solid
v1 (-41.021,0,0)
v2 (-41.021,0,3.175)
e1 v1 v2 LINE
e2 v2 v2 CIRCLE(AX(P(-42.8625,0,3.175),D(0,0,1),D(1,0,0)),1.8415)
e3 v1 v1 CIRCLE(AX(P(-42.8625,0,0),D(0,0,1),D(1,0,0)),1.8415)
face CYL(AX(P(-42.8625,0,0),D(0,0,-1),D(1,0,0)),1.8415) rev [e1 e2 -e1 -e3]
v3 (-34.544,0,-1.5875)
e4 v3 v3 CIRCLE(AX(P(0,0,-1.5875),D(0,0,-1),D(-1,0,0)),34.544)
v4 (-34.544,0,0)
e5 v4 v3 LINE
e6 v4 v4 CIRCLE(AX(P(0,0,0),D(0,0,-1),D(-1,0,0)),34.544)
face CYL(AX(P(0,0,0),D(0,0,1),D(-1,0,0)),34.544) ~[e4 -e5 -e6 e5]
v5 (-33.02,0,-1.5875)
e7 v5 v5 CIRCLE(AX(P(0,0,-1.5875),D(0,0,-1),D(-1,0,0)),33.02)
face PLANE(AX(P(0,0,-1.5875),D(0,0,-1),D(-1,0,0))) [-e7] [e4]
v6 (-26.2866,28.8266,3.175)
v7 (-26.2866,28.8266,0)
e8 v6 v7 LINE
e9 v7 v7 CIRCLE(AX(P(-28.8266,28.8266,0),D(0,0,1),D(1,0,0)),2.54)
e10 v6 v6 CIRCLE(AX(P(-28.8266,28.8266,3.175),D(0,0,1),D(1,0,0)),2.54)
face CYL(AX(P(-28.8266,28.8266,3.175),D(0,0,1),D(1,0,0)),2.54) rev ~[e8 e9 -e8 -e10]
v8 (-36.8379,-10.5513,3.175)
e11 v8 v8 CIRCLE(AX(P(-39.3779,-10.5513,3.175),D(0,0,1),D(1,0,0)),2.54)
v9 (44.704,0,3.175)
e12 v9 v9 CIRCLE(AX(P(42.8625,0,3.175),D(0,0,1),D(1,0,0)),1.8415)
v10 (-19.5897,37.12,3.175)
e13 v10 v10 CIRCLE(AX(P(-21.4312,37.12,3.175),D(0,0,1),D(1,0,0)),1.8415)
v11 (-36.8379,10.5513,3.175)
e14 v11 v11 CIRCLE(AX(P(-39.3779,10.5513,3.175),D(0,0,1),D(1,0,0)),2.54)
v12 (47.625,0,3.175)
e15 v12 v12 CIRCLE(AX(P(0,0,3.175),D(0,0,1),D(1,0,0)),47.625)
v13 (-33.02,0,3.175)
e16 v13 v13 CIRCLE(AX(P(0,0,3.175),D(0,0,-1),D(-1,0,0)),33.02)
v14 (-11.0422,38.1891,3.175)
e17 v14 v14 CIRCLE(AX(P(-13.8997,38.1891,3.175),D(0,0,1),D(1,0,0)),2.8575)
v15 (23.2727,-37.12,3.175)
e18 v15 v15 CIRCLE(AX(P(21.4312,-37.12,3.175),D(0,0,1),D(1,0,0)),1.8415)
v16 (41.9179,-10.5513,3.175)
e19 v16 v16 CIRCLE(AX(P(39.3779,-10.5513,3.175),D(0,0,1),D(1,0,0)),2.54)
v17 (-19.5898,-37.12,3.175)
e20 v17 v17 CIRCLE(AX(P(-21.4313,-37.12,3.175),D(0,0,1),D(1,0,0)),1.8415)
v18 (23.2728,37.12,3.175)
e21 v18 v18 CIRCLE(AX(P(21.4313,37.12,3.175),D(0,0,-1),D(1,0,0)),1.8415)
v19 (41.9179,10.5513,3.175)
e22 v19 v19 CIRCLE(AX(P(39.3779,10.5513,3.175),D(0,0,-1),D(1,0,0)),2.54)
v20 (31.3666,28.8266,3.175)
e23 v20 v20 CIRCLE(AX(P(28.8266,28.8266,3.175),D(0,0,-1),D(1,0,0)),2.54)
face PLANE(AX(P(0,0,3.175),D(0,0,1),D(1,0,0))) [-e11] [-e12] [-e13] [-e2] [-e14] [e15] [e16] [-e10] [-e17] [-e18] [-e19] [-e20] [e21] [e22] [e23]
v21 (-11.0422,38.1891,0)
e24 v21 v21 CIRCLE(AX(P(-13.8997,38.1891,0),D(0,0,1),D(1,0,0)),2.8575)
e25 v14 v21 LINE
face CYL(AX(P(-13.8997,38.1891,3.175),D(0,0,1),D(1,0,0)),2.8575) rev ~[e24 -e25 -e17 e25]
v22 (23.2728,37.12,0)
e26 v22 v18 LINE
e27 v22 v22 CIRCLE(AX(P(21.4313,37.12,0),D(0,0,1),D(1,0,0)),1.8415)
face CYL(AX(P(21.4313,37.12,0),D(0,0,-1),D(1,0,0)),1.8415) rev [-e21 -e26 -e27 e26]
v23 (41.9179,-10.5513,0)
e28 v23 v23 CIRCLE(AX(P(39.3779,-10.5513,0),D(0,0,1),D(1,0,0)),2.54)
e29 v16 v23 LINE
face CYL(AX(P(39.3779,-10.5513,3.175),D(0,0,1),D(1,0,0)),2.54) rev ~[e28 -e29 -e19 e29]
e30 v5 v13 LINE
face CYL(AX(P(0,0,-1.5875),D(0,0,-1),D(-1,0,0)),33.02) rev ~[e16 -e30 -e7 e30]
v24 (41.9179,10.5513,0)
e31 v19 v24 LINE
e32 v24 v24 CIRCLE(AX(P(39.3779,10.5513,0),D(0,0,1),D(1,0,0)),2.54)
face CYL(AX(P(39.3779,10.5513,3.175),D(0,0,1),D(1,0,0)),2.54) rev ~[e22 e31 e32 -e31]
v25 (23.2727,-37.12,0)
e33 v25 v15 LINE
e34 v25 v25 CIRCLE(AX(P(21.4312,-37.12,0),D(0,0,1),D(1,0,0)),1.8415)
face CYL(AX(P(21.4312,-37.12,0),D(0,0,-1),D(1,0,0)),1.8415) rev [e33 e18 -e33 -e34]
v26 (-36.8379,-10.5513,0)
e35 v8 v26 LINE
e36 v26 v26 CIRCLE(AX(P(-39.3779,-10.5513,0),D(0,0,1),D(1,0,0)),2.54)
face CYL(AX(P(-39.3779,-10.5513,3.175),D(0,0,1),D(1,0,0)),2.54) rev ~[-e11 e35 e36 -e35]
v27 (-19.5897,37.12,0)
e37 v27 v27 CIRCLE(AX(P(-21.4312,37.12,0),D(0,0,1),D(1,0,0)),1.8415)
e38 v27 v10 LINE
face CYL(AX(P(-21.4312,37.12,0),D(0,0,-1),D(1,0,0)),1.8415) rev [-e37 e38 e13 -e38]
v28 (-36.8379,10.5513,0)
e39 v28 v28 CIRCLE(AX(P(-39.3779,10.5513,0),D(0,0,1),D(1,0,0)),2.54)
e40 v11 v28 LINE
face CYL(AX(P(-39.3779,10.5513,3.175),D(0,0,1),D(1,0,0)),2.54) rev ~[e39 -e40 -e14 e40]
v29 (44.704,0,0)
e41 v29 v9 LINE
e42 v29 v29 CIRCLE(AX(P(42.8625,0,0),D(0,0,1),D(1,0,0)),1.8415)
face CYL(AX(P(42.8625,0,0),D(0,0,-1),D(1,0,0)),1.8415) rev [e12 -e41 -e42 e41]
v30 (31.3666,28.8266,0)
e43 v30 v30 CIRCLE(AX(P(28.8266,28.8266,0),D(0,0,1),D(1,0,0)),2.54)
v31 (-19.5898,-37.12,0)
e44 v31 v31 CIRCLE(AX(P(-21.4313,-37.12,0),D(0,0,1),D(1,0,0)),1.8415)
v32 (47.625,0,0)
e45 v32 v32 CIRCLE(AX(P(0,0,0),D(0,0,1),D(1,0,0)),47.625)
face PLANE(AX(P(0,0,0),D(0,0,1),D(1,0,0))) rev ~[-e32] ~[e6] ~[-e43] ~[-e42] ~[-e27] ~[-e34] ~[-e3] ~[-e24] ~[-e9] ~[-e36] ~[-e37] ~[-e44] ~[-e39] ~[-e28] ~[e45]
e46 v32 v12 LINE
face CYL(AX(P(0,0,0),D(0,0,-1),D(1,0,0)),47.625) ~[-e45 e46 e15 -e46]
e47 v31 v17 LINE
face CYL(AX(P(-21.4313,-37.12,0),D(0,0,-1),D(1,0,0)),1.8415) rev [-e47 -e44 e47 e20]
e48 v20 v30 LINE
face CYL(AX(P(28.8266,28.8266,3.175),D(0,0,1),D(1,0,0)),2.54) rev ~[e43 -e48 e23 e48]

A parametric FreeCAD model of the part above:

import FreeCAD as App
import Part
import Sketcher
Q = App.Units.Quantity

doc = App.newDocument("Part")
params = doc.addObject("Spreadsheet::Sheet", "Params")
for row, (alias, value) in enumerate([
    ("sketch1_diameter", "3.75 in"),
    ("sketch1_diameter2", "0.145 in"),
    ("pad1_length", "0.125 in"),
    ("sketch2_diameter", "2.72 in"),
    ("pad2_length", "0.0625 in"),
    ("sketch3_diameter", "2.6 in"),
    ("pocket1_length", "1 in"),
    ("sketch4_diameter", "0.2 in"),
    ("pocket2_length", "1 in"),
    ("sketch5_diameter", "0.2 in"),
    ("pocket3_length", "1 in"),
    ("sketch6_diameter", "0.225 in"),
], start=1):
    params.set(f"A{row}", alias)
    params.set(f"B{row}", "=" + value)
    params.setAlias(f"B{row}", alias)

body = doc.addObject("PartDesign::Body", "Body")

sketch1 = body.newObject("Sketcher::SketchObject", "Sketch")
sketch1.AttachmentSupport = (doc.getObject("XY_Plane"), [""])
sketch1.MapMode = "FlatFace"
sketch1.addGeometry([
    Part.Circle(App.Vector(0, 0, 0), App.Vector(0, 0, 1), 47.6),
    Part.Circle(App.Vector(-21.4, -37.1, 0), App.Vector(0, 0, 1), 1.8),
    Part.Circle(App.Vector(21.4, -37.1, 0), App.Vector(0, 0, 1), 1.8),
    Part.Circle(App.Vector(-42.9, 0, 0), App.Vector(0, 0, 1), 1.8),
    Part.Circle(App.Vector(-21.4, 37.1, 0), App.Vector(0, 0, 1), 1.8),
    Part.Circle(App.Vector(42.9, 0, 0), App.Vector(0, 0, 1), 1.8),
    Part.Circle(App.Vector(21.4, 37.1, 0), App.Vector(0, 0, 1), 1.8),
], False)
sketch1.addConstraint([
    Sketcher.Constraint("Coincident", 0, 3, -1, 1),
    Sketcher.Constraint("Equal", 1, 2),
    Sketcher.Constraint("Equal", 2, 3),
    Sketcher.Constraint("Equal", 3, 4),
    Sketcher.Constraint("Equal", 4, 5),
    Sketcher.Constraint("Equal", 5, 6),
    Sketcher.Constraint("Symmetric", 2, 3, 4, 3, -1, 1),
    Sketcher.Constraint("Symmetric", 3, 3, 5, 3, -1, 1),
    Sketcher.Constraint("Symmetric", 1, 3, 6, 3, -1, 1),
    Sketcher.Constraint("Symmetric", 1, 3, 2, 3, -2),
    Sketcher.Constraint("PointOnObject", 3, 3, -1),
    Sketcher.Constraint("Diameter", 0, Q("3.75 in")),
    Sketcher.Constraint("Diameter", 1, Q("0.145 in")),
    Sketcher.Constraint("DistanceX", 3, 3, -1, 1, Q("1.6875 in")),
    Sketcher.Constraint("DistanceX", 1, 3, 2, 3, Q("1.6875 in")),
    Sketcher.Constraint("DistanceY", 1, 3, -1, 1, 37.12),
])
sketch1.setExpression("Constraints[11]", "Params.sketch1_diameter")
sketch1.setExpression("Constraints[12]", "Params.sketch1_diameter2")
pad1 = body.newObject("PartDesign::Pad", "Pad")
pad1.Profile = sketch1
pad1.setExpression("Length", "Params.pad1_length")

sketch2 = body.newObject("Sketcher::SketchObject", "Sketch001")
sketch2.AttachmentSupport = (doc.getObject("XY_Plane"), [""])
sketch2.MapMode = "FlatFace"
sketch2.addGeometry(Part.Circle(App.Vector(0, 0, 0), App.Vector(0, 0, 1), 35), False)
sketch2.addConstraint([
    Sketcher.Constraint("Coincident", 0, 3, -1, 1),
    Sketcher.Constraint("Diameter", 0, Q("2.72 in")),
])
sketch2.setExpression("Constraints[1]", "Params.sketch2_diameter")
pad2 = body.newObject("PartDesign::Pad", "Pad001")
pad2.Profile = sketch2
pad2.setExpression("Length", "Params.pad2_length")
pad2.Reversed = True

sketch3 = body.newObject("Sketcher::SketchObject", "Sketch002")
sketch3.AttachmentSupport = (doc.getObject("XY_Plane"), [""])
sketch3.MapMode = "FlatFace"
sketch3.AttachmentOffset = App.Placement(App.Vector(0, 0, -0.0625 * 25.4), App.Rotation())
sketch3.addGeometry(Part.Circle(App.Vector(0, 0, 0), App.Vector(0, 0, 1), 33), False)
sketch3.addConstraint([
    Sketcher.Constraint("Coincident", 0, 3, -1, 1),
    Sketcher.Constraint("Diameter", 0, Q("2.6 in")),
])
sketch3.setExpression("Constraints[1]", "Params.sketch3_diameter")
pocket1 = body.newObject("PartDesign::Pocket", "Pocket")
pocket1.Profile = sketch3
pocket1.setExpression("Length", "Params.pocket1_length")
pocket1.Reversed = True

sketch4 = body.newObject("Sketcher::SketchObject", "Sketch003")
sketch4.AttachmentSupport = (doc.getObject("XY_Plane"), [""])
sketch4.MapMode = "FlatFace"
sketch4.AttachmentOffset = App.Placement(App.Vector(0, 0, 0.125 * 25.4), App.Rotation())
sketch4.addGeometry([
    Part.Circle(App.Vector(39.4, 10.6, 0), App.Vector(0, 0, 1), 2.5),
    Part.Circle(App.Vector(39.4, -10.6, 0), App.Vector(0, 0, 1), 2.5),
    Part.Circle(App.Vector(-39.4, 10.6, 0), App.Vector(0, 0, 1), 2.5),
    Part.Circle(App.Vector(-39.4, -10.6, 0), App.Vector(0, 0, 1), 2.5),
], False)
sketch4.addConstraint([
    Sketcher.Constraint("Equal", 0, 1),
    Sketcher.Constraint("Equal", 1, 2),
    Sketcher.Constraint("Equal", 2, 3),
    Sketcher.Constraint("Symmetric", 1, 3, 2, 3, -1, 1),
    Sketcher.Constraint("Symmetric", 0, 3, 3, 3, -1, 1),
    Sketcher.Constraint("Symmetric", 0, 3, 2, 3, -2),
    Sketcher.Constraint("Diameter", 0, Q("0.2 in")),
    Sketcher.Constraint("DistanceX", -1, 1, 0, 3, Q("1.5503 in")),
    Sketcher.Constraint("DistanceY", -1, 1, 0, 3, Q("0.4154 in")),
])
sketch4.setExpression("Constraints[6]", "Params.sketch4_diameter")
pocket2 = body.newObject("PartDesign::Pocket", "Pocket001")
pocket2.Profile = sketch4
pocket2.setExpression("Length", "Params.pocket2_length")

sketch5 = body.newObject("Sketcher::SketchObject", "Sketch004")
sketch5.AttachmentSupport = (doc.getObject("XY_Plane"), [""])
sketch5.MapMode = "FlatFace"
sketch5.AttachmentOffset = App.Placement(App.Vector(0, 0, 0.125 * 25.4), App.Rotation())
sketch5.addGeometry([
    Part.Circle(App.Vector(28.8, 28.8, 0), App.Vector(0, 0, 1), 2.5),
    Part.Circle(App.Vector(-28.8, 28.8, 0), App.Vector(0, 0, 1), 2.5),
], False)
sketch5.addConstraint([
    Sketcher.Constraint("Equal", 0, 1),
    Sketcher.Constraint("Symmetric", 0, 3, 1, 3, -2),
    Sketcher.Constraint("Diameter", 0, Q("0.2 in")),
    Sketcher.Constraint("DistanceX", -1, 1, 0, 3, Q("1.1349 in")),
    Sketcher.Constraint("DistanceY", -1, 1, 0, 3, Q("1.1349 in")),
])
sketch5.setExpression("Constraints[2]", "Params.sketch5_diameter")
pocket3 = body.newObject("PartDesign::Pocket", "Pocket002")
pocket3.Profile = sketch5
pocket3.setExpression("Length", "Params.pocket3_length")

sketch6 = body.newObject("Sketcher::SketchObject", "Sketch005")
sketch6.AttachmentSupport = (doc.getObject("XY_Plane"), [""])
sketch6.MapMode = "FlatFace"
sketch6.AttachmentOffset = App.Placement(App.Vector(0, 0, 0.125 * 25.4), App.Rotation())
sketch6.addGeometry(Part.Circle(App.Vector(-13.9, 38.2, 0), App.Vector(0, 0, 1), 2.9), False)
sketch6.addConstraint([
    Sketcher.Constraint("Diameter", 0, Q("0.225 in")),
    Sketcher.Constraint("DistanceY", -1, 1, 0, 3, Q("1.5035 in")),
    Sketcher.Constraint("DistanceX", 0, 3, -1, 1, 13.8997),
])
sketch6.setExpression("Constraints[0]", "Params.sketch6_diameter")
pocket4 = body.newObject("PartDesign::Pocket", "Pocket003")
pocket4.Profile = sketch6
pocket4.Type = "ThroughAll"

doc.recompute()
